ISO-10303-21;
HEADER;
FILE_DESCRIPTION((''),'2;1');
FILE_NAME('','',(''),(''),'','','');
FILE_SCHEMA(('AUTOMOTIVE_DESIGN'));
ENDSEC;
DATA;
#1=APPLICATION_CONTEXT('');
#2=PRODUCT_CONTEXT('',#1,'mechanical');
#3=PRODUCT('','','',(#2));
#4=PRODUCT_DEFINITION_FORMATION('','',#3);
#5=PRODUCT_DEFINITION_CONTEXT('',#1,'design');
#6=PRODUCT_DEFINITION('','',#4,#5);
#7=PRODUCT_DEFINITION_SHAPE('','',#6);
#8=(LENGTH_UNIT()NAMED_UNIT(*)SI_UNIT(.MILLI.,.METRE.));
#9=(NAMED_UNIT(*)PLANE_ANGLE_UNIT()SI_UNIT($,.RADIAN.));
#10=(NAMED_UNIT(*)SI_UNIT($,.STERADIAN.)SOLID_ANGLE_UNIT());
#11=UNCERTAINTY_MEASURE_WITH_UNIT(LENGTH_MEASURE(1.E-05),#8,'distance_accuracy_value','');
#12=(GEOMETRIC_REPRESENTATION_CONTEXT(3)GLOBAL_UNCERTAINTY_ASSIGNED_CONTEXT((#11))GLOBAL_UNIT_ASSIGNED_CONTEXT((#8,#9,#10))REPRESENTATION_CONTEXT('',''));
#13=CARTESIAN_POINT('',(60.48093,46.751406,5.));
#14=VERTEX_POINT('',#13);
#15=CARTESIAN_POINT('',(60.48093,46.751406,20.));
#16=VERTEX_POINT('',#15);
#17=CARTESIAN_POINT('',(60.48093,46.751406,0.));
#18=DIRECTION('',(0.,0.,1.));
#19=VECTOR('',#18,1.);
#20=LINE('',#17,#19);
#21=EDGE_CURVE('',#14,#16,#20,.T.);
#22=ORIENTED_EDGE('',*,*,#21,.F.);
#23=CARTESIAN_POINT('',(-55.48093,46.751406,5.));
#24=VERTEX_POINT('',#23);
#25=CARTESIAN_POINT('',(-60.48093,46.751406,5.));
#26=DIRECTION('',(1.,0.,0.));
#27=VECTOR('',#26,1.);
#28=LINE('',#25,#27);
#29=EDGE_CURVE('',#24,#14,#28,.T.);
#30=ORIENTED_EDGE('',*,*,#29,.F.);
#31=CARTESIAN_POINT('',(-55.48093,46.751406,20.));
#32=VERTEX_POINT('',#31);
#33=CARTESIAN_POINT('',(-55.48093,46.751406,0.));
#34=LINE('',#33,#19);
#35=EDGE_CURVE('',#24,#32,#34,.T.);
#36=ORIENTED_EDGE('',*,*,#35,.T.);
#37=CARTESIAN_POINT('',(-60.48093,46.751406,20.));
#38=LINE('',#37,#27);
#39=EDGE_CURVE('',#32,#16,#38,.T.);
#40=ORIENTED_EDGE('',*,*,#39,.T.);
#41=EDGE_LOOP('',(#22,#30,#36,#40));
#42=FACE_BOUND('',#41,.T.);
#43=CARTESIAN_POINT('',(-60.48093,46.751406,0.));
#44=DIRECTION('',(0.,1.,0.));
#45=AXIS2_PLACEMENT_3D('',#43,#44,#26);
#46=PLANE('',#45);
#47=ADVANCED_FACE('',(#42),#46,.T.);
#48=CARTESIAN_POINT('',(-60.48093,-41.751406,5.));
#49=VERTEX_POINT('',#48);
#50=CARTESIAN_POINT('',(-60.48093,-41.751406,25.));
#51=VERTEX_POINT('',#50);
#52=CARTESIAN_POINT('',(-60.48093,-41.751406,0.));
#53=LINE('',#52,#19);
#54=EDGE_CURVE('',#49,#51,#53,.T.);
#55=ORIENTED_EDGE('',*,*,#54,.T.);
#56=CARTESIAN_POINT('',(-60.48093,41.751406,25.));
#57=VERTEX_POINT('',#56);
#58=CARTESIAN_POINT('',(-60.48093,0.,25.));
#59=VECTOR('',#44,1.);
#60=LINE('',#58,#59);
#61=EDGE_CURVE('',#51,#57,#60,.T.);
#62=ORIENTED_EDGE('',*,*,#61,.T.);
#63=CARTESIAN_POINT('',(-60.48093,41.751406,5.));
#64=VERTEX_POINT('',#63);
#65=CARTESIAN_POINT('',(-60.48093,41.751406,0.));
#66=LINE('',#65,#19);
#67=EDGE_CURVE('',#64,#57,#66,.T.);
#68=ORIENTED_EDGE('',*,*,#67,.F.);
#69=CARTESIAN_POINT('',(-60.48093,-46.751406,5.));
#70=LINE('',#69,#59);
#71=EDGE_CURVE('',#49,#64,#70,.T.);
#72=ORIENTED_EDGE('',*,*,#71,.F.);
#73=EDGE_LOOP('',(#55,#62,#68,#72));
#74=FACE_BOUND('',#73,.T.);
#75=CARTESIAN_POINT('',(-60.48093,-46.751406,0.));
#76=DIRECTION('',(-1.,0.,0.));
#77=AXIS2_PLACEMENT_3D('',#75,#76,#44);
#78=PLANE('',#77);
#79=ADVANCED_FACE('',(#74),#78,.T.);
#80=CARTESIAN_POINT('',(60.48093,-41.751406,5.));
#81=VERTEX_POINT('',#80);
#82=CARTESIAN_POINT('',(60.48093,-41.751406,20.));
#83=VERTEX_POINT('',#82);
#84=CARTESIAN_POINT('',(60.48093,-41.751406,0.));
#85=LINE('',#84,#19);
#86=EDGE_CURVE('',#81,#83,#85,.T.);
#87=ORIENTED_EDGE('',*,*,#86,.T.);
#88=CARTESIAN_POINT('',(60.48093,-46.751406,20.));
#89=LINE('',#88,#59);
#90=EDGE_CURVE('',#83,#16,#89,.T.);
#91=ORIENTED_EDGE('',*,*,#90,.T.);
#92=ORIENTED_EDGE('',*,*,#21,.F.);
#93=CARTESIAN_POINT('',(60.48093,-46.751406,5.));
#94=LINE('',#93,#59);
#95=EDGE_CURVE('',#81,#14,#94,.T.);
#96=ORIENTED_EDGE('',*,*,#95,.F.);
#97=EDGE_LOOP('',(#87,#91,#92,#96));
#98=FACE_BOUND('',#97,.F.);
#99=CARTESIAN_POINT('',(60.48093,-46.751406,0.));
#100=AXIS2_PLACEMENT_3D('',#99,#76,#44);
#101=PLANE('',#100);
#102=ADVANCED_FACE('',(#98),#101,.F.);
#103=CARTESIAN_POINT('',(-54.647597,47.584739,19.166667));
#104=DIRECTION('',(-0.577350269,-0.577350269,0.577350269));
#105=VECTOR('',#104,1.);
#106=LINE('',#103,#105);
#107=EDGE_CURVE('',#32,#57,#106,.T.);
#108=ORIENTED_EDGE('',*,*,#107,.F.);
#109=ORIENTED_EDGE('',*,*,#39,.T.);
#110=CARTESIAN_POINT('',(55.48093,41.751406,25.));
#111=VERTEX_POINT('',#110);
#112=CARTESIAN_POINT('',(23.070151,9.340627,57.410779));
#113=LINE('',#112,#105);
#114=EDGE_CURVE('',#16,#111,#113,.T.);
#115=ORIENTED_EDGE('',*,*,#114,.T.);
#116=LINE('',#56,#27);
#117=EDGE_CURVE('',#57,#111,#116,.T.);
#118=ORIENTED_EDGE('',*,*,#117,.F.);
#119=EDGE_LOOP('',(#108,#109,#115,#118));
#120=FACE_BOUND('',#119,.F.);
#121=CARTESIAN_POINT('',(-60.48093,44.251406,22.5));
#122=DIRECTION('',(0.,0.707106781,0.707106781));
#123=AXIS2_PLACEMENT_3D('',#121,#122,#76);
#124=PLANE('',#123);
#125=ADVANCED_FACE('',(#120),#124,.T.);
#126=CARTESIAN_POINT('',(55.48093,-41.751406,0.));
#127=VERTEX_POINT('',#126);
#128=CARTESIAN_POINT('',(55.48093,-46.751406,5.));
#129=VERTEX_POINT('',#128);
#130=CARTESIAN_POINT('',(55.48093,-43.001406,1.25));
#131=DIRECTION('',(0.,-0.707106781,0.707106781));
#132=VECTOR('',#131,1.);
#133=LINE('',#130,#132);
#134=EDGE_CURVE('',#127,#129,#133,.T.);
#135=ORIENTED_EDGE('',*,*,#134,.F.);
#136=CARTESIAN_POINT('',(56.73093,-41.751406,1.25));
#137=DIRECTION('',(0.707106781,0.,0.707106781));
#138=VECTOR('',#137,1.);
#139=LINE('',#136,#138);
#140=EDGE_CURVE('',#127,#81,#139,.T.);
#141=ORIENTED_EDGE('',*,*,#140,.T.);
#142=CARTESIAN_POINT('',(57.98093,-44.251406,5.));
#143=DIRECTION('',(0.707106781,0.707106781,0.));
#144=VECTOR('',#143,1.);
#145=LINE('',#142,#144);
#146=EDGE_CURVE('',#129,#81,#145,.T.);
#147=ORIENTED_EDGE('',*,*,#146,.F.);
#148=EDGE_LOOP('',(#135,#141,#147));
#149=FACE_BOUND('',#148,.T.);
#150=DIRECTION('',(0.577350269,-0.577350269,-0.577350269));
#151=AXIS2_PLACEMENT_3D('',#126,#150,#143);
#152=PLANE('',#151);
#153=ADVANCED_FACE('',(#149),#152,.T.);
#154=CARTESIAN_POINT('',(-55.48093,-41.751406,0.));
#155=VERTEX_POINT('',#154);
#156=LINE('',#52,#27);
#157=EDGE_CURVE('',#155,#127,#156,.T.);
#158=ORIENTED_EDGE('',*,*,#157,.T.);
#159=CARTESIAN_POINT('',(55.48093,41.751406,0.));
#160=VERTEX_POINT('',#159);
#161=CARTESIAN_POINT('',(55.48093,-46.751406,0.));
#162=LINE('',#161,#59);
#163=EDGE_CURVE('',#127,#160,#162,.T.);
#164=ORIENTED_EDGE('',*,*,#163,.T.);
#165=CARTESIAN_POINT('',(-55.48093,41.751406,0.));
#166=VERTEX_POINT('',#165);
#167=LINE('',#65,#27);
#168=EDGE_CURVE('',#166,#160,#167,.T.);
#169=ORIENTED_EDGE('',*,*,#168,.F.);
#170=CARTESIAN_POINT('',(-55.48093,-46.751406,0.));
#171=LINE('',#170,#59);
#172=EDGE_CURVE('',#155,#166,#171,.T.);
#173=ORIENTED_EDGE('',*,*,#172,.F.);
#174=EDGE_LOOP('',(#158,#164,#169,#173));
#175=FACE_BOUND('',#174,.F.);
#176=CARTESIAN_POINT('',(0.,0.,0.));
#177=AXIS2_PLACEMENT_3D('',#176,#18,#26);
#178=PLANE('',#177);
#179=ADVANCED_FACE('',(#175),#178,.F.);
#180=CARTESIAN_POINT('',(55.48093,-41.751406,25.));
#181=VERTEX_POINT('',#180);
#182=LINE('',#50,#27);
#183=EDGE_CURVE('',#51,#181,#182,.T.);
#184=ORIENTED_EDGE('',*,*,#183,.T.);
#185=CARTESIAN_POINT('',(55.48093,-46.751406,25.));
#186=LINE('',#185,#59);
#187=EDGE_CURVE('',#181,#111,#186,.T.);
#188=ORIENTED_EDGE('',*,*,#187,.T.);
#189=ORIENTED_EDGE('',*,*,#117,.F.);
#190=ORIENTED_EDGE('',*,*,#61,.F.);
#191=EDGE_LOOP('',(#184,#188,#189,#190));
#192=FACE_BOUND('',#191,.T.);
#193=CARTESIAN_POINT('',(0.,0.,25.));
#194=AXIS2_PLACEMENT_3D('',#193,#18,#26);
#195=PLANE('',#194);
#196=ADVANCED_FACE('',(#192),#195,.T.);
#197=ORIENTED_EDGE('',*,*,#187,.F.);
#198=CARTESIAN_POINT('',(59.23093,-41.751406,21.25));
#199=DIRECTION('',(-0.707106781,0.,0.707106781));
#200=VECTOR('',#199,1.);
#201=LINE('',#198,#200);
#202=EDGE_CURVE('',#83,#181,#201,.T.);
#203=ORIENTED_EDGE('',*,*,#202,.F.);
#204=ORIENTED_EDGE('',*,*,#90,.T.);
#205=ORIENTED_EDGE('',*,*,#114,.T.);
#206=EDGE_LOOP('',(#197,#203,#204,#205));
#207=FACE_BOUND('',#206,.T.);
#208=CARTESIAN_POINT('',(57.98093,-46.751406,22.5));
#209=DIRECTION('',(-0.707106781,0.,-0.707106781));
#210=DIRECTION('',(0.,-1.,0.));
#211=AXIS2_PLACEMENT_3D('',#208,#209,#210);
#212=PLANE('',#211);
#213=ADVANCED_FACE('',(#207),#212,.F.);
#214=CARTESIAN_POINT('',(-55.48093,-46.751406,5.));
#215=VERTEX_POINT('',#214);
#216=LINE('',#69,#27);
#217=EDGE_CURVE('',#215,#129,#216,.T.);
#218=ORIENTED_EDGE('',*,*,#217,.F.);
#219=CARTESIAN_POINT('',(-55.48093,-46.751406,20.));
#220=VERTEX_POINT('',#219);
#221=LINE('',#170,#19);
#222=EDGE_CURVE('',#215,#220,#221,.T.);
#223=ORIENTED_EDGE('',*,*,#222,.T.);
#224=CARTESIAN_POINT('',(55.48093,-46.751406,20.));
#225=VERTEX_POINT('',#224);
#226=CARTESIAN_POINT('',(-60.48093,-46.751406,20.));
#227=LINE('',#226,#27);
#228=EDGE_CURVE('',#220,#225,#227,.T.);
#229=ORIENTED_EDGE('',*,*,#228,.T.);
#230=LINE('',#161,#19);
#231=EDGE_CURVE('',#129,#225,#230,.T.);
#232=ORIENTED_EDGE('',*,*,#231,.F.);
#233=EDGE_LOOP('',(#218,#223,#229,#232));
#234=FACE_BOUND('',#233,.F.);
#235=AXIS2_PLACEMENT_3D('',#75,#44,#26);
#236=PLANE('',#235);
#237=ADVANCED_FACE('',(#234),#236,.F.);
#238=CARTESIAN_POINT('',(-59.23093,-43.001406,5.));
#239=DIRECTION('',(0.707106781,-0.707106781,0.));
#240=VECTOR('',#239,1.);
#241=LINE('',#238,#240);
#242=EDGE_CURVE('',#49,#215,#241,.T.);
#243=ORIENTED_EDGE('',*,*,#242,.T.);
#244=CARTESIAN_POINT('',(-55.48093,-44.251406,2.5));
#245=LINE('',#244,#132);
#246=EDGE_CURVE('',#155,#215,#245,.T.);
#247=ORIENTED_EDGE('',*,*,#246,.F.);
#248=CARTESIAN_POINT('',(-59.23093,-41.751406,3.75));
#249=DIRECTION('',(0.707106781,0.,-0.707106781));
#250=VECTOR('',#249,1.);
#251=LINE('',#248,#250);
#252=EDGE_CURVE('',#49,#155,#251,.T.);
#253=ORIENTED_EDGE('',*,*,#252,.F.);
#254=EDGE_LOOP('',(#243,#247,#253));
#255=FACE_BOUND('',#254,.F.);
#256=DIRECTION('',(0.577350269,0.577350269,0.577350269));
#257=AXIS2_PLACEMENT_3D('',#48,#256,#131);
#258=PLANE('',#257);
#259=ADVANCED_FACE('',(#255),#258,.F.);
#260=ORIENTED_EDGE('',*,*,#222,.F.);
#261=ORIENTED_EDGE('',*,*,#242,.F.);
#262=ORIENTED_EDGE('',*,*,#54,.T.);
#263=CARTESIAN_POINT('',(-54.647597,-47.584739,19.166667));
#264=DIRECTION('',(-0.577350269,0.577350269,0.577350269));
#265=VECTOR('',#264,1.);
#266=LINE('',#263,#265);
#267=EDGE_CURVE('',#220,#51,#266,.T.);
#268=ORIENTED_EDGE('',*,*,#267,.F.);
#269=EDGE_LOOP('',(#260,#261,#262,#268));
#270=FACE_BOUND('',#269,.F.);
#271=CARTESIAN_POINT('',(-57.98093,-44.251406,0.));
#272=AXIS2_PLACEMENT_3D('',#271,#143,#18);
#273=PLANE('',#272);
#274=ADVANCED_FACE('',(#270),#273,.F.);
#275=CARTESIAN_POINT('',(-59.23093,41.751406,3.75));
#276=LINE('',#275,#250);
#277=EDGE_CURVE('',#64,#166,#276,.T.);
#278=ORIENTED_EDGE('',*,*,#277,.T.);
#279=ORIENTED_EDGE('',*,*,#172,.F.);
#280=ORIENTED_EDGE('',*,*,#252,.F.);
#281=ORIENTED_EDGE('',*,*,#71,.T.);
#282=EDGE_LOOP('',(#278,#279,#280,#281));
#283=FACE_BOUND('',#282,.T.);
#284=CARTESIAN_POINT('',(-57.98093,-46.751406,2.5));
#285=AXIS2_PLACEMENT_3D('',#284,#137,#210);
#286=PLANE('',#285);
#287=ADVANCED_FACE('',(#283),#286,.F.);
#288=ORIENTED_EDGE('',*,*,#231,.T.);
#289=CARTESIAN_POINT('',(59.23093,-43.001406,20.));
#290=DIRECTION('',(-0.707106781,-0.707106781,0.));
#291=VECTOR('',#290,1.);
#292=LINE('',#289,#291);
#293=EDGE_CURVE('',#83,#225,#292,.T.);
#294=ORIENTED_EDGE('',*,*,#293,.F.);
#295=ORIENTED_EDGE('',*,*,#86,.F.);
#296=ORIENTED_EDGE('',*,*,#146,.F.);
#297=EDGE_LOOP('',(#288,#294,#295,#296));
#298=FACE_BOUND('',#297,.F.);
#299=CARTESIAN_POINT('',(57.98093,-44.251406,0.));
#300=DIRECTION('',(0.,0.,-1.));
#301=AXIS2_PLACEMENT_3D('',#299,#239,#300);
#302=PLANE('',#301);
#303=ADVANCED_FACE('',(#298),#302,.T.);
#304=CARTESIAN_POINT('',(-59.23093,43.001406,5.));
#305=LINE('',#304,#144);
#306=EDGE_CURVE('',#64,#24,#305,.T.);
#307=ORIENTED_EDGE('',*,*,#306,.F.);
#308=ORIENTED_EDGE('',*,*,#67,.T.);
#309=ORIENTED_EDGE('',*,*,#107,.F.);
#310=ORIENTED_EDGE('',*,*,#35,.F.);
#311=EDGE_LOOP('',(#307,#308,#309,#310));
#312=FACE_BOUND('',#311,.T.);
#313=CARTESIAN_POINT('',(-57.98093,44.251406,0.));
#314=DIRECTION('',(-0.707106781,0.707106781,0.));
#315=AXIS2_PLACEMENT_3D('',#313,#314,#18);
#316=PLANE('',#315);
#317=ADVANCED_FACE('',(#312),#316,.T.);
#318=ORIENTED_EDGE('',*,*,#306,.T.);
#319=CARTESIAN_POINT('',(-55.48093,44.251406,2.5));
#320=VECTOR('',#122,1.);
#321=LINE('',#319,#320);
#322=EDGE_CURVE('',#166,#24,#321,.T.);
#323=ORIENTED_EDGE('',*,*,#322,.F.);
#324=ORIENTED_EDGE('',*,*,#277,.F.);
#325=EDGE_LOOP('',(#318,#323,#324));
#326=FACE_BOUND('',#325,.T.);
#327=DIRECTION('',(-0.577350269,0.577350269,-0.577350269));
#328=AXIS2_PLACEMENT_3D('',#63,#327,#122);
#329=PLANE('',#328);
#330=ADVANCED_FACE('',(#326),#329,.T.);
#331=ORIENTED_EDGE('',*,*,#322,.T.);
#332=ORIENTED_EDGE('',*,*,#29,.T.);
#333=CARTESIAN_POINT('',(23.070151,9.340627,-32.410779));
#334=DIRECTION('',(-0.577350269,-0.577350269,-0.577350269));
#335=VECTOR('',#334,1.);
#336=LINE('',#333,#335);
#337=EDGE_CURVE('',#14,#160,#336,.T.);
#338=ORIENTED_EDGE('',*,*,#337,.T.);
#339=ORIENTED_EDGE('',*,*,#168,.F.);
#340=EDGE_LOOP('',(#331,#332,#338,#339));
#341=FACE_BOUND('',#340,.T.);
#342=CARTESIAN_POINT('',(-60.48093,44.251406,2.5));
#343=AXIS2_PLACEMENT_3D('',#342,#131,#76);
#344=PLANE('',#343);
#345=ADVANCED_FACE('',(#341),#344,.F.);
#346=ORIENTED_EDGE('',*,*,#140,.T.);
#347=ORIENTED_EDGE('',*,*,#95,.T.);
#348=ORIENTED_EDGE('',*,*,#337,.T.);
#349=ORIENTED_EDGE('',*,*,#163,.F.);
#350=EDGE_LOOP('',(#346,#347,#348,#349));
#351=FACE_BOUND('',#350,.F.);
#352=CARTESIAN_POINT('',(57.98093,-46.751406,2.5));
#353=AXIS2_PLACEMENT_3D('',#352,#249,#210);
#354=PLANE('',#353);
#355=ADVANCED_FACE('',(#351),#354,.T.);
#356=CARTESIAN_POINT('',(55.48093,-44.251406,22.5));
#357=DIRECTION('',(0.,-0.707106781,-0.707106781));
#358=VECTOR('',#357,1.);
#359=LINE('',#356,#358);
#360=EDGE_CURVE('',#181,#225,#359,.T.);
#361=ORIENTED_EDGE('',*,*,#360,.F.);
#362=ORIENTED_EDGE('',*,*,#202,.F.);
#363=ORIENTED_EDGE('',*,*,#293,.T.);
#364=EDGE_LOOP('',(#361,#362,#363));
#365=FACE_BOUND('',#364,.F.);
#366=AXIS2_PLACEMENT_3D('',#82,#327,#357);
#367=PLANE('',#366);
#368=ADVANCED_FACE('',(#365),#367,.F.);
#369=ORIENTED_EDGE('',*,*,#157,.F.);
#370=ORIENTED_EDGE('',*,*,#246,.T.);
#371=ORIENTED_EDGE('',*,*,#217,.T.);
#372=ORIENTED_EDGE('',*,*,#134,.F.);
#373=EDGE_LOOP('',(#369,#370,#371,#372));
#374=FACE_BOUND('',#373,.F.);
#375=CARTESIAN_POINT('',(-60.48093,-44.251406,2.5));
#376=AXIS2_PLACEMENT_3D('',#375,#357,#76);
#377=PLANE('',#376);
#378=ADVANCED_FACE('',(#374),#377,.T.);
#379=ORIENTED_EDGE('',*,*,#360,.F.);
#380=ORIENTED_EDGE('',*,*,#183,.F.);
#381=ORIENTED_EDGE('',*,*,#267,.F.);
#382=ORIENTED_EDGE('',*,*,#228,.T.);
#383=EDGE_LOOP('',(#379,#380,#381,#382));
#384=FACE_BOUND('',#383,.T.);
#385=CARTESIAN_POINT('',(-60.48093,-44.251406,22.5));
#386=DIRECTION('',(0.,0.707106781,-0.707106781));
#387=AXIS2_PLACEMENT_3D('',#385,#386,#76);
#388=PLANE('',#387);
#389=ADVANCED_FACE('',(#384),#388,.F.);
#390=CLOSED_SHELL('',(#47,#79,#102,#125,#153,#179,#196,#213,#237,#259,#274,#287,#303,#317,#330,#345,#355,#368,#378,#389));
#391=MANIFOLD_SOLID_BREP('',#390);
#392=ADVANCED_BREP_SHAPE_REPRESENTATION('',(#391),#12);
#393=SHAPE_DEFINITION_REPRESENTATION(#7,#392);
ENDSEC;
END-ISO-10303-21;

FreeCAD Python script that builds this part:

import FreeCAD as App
import Part
import Sketcher
from FreeCAD import Vector


def edges_at(feature, points):
    """Names of the edges that pass closest to the given points."""
    edges = feature.Shape.Edges
    near = lambda p: min(range(len(edges)), key=lambda i: edges[i].distToShape(Part.Vertex(*p))[0])
    return sorted({f"Edge{near(p) + 1}" for p in points})


def add_polygon(sketch, points):
    """Adds a closed chain of lines whose ends are joined by coincident constraints."""
    first, n = sketch.GeometryCount, len(points)
    for a, b in zip(points, points[1:] + points[:1]):
        sketch.addGeometry(Part.LineSegment(App.Vector(*a, 0), App.Vector(*b, 0)), False)
    for i in range(n):
        sketch.addConstraint(Sketcher.Constraint("Coincident", first + i, 2, first + (i + 1) % n, 1))

doc = App.newDocument("Part")
params = doc.addObject("Spreadsheet::Sheet", "Params")
for row, (alias, value) in enumerate([
    ("pad1_length", "25 mm"),
    ("chamfer_size", "5 mm"),
], start=1):
    params.set(f"A{row}", alias)
    params.set(f"B{row}", "=" + value)
    params.setAlias(f"B{row}", alias)

body = doc.addObject("PartDesign::Body", "Body")

# Sketch on XY plane
sketch1 = doc.addObject("Sketcher::SketchObject", "Sketch")
body.addObject(sketch1)
sketch1.AttachmentSupport = (doc.XY_Plane, [""])
sketch1.MapMode = "FlatFace"
add_polygon(sketch1, [(-60, 47), (-60, -47), (60, -47), (60, 47)])  # lines 0-3
sketch1.addConstraint([
    Sketcher.Constraint("Vertical", 0),
    Sketcher.Constraint("Horizontal", 1),
    Sketcher.Constraint("Vertical", 2),
    Sketcher.Constraint("Horizontal", 3),
    Sketcher.Constraint("Symmetric", 0, 2, 2, 2, -1, 1),
    Sketcher.Constraint("DistanceX", 1, 1, 1, 2, 120.96186),
    Sketcher.Constraint("DistanceY", 0, 2, 0, 1, 93.502812),
])
pad1 = doc.addObject("PartDesign::Pad", "Pad")
body.addObject(pad1)
pad1.Profile = sketch1
pad1.setExpression("Length", "Params.pad1_length")
doc.recompute()

chamfer = doc.addObject("PartDesign::Chamfer", "Chamfer")
body.addObject(chamfer)
chamfer.Base = (pad1, edges_at(pad1, [
    (0, -46.751, 25),
    (60.481, 0, 25),
    (60.481, -46.751, 12.5),
    (0, -46.751, 0),
    (60.481, 0, 0),
    (0, 46.751, 25),
    (0, 46.751, 0),
    (-60.481, 0, 0),
    (-60.481, 46.751, 12.5),
    (-60.481, -46.751, 12.5),
]))
chamfer.setExpression("Size", "Params.chamfer_size")

doc.recompute()
